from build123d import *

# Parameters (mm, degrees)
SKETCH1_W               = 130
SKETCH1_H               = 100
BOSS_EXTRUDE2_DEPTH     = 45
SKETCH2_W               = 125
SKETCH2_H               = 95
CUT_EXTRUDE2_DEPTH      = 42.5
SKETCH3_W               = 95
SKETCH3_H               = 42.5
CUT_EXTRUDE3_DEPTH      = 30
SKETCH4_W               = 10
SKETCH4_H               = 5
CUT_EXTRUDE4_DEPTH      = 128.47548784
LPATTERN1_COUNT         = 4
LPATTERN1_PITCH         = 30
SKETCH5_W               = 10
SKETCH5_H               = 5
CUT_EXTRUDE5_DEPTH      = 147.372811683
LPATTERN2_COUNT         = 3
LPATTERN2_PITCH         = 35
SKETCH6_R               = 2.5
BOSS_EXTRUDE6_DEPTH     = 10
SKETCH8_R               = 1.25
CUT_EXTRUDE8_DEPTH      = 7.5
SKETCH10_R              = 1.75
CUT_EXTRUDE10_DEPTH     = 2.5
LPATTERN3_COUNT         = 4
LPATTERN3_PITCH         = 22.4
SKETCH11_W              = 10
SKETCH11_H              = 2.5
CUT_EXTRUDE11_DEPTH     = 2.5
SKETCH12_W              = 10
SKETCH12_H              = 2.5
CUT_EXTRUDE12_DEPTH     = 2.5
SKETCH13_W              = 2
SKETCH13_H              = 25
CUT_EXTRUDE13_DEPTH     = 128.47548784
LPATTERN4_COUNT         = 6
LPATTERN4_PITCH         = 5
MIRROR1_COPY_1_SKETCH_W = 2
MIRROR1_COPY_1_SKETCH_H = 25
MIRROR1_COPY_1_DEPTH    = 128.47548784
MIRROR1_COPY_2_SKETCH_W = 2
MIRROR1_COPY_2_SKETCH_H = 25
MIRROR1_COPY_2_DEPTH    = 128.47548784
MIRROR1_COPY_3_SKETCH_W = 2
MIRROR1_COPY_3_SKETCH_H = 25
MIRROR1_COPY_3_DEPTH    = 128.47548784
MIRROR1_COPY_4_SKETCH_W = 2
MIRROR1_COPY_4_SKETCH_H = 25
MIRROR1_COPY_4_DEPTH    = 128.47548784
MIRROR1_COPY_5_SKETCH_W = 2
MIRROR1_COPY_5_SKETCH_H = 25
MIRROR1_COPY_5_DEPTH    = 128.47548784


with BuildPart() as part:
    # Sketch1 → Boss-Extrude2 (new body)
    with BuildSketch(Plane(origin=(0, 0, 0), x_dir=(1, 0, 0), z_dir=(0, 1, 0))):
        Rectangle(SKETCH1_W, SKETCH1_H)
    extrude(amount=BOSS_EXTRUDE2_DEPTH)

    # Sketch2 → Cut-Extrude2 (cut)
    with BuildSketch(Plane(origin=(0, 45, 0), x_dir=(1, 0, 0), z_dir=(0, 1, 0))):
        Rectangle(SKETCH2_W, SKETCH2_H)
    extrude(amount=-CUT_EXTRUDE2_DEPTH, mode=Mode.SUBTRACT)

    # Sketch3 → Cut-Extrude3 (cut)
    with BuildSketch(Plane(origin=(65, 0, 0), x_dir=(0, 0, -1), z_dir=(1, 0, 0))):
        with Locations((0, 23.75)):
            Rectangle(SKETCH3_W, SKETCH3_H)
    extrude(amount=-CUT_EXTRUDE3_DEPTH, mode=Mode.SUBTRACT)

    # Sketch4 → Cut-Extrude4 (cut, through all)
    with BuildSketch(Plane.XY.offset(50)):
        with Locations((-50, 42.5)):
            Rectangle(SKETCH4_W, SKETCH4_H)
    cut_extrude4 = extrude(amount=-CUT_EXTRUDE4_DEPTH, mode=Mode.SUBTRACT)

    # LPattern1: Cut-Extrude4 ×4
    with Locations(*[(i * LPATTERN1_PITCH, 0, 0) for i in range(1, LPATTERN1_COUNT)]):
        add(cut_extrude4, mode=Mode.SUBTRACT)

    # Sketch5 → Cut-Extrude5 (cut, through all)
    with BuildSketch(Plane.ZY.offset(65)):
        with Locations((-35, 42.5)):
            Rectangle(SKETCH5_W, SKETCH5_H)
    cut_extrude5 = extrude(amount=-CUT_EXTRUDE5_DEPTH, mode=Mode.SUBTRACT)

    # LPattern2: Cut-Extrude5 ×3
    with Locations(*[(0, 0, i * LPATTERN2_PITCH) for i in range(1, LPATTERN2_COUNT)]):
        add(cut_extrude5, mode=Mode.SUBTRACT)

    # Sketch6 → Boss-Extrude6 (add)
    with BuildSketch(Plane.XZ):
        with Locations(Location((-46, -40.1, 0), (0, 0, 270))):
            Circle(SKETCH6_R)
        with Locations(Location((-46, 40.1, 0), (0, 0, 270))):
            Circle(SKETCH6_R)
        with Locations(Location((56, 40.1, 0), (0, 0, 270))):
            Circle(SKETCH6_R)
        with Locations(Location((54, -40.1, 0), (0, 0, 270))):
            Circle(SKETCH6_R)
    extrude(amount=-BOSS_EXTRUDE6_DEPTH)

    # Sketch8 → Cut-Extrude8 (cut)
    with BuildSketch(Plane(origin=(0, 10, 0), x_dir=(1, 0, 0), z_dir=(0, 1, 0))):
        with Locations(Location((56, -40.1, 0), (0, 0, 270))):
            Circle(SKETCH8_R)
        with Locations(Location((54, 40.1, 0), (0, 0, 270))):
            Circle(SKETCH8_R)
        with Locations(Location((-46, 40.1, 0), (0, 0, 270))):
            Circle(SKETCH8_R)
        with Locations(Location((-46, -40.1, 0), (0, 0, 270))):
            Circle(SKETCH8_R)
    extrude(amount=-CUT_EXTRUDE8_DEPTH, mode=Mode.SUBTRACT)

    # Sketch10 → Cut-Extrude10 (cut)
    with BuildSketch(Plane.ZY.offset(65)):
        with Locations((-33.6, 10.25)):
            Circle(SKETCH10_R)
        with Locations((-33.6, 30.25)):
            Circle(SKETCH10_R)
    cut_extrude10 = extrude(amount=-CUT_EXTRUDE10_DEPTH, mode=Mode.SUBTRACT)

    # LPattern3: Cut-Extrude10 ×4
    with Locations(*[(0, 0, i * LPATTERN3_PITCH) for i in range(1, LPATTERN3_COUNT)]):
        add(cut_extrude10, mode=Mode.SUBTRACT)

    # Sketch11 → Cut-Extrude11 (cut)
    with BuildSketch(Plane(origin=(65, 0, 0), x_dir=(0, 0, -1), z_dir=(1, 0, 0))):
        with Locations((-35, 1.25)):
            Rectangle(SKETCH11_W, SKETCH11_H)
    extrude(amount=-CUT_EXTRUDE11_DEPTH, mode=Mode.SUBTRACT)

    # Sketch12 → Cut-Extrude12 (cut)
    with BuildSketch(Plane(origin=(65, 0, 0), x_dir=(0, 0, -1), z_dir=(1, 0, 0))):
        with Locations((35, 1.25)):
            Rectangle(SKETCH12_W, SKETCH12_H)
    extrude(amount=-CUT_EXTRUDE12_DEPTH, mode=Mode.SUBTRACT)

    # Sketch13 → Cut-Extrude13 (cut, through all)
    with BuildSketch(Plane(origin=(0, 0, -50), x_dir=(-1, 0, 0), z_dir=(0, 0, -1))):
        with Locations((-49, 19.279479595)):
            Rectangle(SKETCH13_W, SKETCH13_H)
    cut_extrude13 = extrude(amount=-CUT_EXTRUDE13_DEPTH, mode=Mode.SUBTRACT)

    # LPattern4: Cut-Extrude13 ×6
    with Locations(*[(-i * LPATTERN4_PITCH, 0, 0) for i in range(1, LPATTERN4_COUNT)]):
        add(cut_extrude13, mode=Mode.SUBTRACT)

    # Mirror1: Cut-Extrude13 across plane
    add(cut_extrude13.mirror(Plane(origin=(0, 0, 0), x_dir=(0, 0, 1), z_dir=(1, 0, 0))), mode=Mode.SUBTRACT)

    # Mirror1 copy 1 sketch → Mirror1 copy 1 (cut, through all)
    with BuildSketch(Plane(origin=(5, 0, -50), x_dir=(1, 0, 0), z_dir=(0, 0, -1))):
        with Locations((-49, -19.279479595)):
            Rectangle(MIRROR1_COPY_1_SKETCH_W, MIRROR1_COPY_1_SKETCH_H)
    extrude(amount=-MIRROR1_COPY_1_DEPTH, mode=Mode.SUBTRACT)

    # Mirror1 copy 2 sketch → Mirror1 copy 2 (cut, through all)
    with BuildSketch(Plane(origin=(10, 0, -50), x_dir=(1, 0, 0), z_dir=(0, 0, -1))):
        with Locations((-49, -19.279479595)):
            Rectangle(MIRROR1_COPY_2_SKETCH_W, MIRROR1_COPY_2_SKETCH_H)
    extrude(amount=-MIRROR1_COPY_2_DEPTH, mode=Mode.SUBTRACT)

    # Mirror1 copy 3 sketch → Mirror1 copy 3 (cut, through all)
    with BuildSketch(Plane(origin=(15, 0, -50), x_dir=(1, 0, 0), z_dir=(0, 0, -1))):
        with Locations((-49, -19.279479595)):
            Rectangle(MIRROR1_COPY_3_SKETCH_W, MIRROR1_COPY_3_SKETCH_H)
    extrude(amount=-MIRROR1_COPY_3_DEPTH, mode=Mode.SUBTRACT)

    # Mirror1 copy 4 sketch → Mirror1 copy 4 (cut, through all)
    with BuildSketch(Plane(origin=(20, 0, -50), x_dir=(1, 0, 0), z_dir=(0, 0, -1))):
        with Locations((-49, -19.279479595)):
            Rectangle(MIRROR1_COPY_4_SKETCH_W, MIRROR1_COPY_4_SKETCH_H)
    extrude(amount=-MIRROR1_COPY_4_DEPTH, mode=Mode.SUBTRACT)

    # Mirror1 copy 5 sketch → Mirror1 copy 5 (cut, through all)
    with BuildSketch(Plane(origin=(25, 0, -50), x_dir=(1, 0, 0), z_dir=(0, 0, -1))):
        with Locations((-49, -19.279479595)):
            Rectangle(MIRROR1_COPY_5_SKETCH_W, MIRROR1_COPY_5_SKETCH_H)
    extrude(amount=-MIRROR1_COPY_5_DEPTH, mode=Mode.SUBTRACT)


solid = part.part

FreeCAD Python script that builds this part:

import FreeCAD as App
import Part
import Sketcher
Q = App.Units.Quantity


def add_polygon(sketch, points):
    """Adds a closed chain of lines whose ends are joined by coincident constraints."""
    first, n = sketch.GeometryCount, len(points)
    for a, b in zip(points, points[1:] + points[:1]):
        sketch.addGeometry(Part.LineSegment(App.Vector(*a, 0), App.Vector(*b, 0)), False)
    for i in range(n):
        sketch.addConstraint(Sketcher.Constraint("Coincident", first + i, 2, first + (i + 1) % n, 1))

doc = App.newDocument("Part")
body = doc.addObject("PartDesign::Body", "Body")

# Sketch on XZ plane
sketch1 = doc.addObject("Sketcher::SketchObject", "Sketch")
body.addObject(sketch1)
sketch1.AttachmentSupport = (doc.XZ_Plane, [""])
sketch1.MapMode = "FlatFace"
add_polygon(sketch1, [(-65, -50), (-65, 50), (65, 50), (65, -50)])  # lines 0-3
sketch1.addConstraint([
    Sketcher.Constraint("Vertical", 0),
    Sketcher.Constraint("Horizontal", 1),
    Sketcher.Constraint("Vertical", 2),
    Sketcher.Constraint("Horizontal", 3),
    Sketcher.Constraint("Symmetric", 0, 2, 2, 2, -1, 1),
    Sketcher.Constraint("DistanceX", 1, 1, 1, 2, Q("130 mm")),
    Sketcher.Constraint("DistanceY", 0, 1, 0, 2, Q("100 mm")),
])
pad1 = doc.addObject("PartDesign::Pad", "Pad")
body.addObject(pad1)
pad1.Profile = sketch1
pad1.Length = 45
pad1.Reversed = True

# Sketch on XZ plane
sketch2 = doc.addObject("Sketcher::SketchObject", "Sketch001")
body.addObject(sketch2)
sketch2.AttachmentSupport = (doc.XZ_Plane, [""])
sketch2.MapMode = "FlatFace"
sketch2.AttachmentOffset = App.Placement(App.Vector(0, 0, -45), App.Rotation())
add_polygon(sketch2, [(-62.5, -47.5), (-62.5, 47.5), (62.5, 47.5), (62.5, -47.5)])  # lines 0-3
sketch2.addConstraint([
    Sketcher.Constraint("Vertical", 0),
    Sketcher.Constraint("Horizontal", 1),
    Sketcher.Constraint("Vertical", 2),
    Sketcher.Constraint("Horizontal", 3),
    Sketcher.Constraint("Symmetric", 0, 2, 2, 2, -1, 1),
    Sketcher.Constraint("DistanceX", 1, 1, 1, 2, Q("125 mm")),
    Sketcher.Constraint("DistanceY", 0, 1, 0, 2, Q("95 mm")),
])
pocket1 = doc.addObject("PartDesign::Pocket", "Pocket")
body.addObject(pocket1)
pocket1.Profile = sketch2
pocket1.Length = 42.5
pocket1.Reversed = True

# Sketch on YZ plane
sketch3 = doc.addObject("Sketcher::SketchObject", "Sketch002")
body.addObject(sketch3)
sketch3.AttachmentSupport = (doc.YZ_Plane, [""])
sketch3.MapMode = "FlatFace"
sketch3.AttachmentOffset = App.Placement(App.Vector(0, 0, 65), App.Rotation())
add_polygon(sketch3, [(45, 47.5), (2.5, 47.5), (2.5, -47.5), (45, -47.5)])  # lines 0-3
sketch3.addConstraint([
    Sketcher.Constraint("Horizontal", 0),
    Sketcher.Constraint("Vertical", 1),
    Sketcher.Constraint("Horizontal", 2),
    Sketcher.Constraint("Vertical", 3),
    Sketcher.Constraint("DistanceY", 1, 2, 1, 1, Q("95 mm")),
    Sketcher.Constraint("DistanceX", 0, 2, 0, 1, Q("42.5 mm")),
    Sketcher.Constraint("DistanceX", -1, 1, 2, 2, Q("45 mm")),
    Sketcher.Constraint("DistanceY", -1, 1, 0, 2, Q("47.5 mm")),
])
pocket2 = doc.addObject("PartDesign::Pocket", "Pocket001")
body.addObject(pocket2)
pocket2.Profile = sketch3
pocket2.Length = 30

# Sketch on XY plane
sketch4 = doc.addObject("Sketcher::SketchObject", "Sketch003")
body.addObject(sketch4)
sketch4.AttachmentSupport = (doc.XY_Plane, [""])
sketch4.MapMode = "FlatFace"
sketch4.AttachmentOffset = App.Placement(App.Vector(0, 0, 50), App.Rotation())
add_polygon(sketch4, [(-55, 45), (-55, 40), (-45, 40), (-45, 45)])  # lines 0-3
sketch4.addConstraint([
    Sketcher.Constraint("Vertical", 0),
    Sketcher.Constraint("Horizontal", 1),
    Sketcher.Constraint("Vertical", 2),
    Sketcher.Constraint("Horizontal", 3),
    Sketcher.Constraint("DistanceX", 1, 1, 1, 2, Q("10 mm")),
    Sketcher.Constraint("DistanceY", 0, 2, 0, 1, Q("5 mm")),
    Sketcher.Constraint("DistanceX", 0, 2, -1, 1, Q("55 mm")),
    Sketcher.Constraint("DistanceY", -1, 1, 0, 2, Q("40 mm")),
])
pocket3 = doc.addObject("PartDesign::Pocket", "Pocket002")
body.addObject(pocket3)
pocket3.Profile = sketch4
pocket3.Type = "ThroughAll"
doc.recompute()

linearpattern = doc.addObject("PartDesign::LinearPattern", "LinearPattern")
body.addObject(linearpattern)
linearpattern.Originals = [pocket3]
linearpattern.Direction = (doc.X_Axis, [""])
linearpattern.Mode = "offset"
linearpattern.Offset = 30
linearpattern.Occurrences = 4
body.Tip = linearpattern

# Sketch on YZ plane
sketch5 = doc.addObject("Sketcher::SketchObject", "Sketch004")
body.addObject(sketch5)
sketch5.AttachmentSupport = (doc.YZ_Plane, [""])
sketch5.MapMode = "FlatFace"
sketch5.AttachmentOffset = App.Placement(App.Vector(0, 0, -65), App.Rotation())
add_polygon(sketch5, [(45, -40), (40, -40), (40, -30), (45, -30)])  # lines 0-3
sketch5.addConstraint([
    Sketcher.Constraint("Horizontal", 0),
    Sketcher.Constraint("Vertical", 1),
    Sketcher.Constraint("Horizontal", 2),
    Sketcher.Constraint("Vertical", 3),
    Sketcher.Constraint("DistanceX", 0, 2, 0, 1, Q("5 mm")),
    Sketcher.Constraint("DistanceY", 1, 1, 1, 2, Q("10 mm")),
    Sketcher.Constraint("DistanceX", -1, 1, 0, 2, Q("40 mm")),
    Sketcher.Constraint("DistanceY", 0, 2, -1, 1, Q("40 mm")),
])
pocket4 = doc.addObject("PartDesign::Pocket", "Pocket003")
body.addObject(pocket4)
pocket4.Profile = sketch5
pocket4.Type = "ThroughAll"
pocket4.Reversed = True
doc.recompute()

linearpattern2 = doc.addObject("PartDesign::LinearPattern", "LinearPattern001")
body.addObject(linearpattern2)
linearpattern2.Originals = [pocket4]
linearpattern2.Direction = (doc.Z_Axis, [""])
linearpattern2.Mode = "offset"
linearpattern2.Offset = 35
linearpattern2.Occurrences = 3
body.Tip = linearpattern2

# Sketch on XZ plane
sketch6 = doc.addObject("Sketcher::SketchObject", "Sketch005")
body.addObject(sketch6)
sketch6.AttachmentSupport = (doc.XZ_Plane, [""])
sketch6.MapMode = "FlatFace"
sketch6.addGeometry([
    Part.Circle(App.Vector(-46, -40.1, 0), App.Vector(0, 0, 1), 2.5),
    Part.Circle(App.Vector(-46, 40.1, 0), App.Vector(0, 0, 1), 2.5),
    Part.Circle(App.Vector(56, 40.1, 0), App.Vector(0, 0, 1), 2.5),
    Part.Circle(App.Vector(54, -40.1, 0), App.Vector(0, 0, 1), 2.5),
], False)
sketch6.addConstraint([
    Sketcher.Constraint("Equal", 0, 1),
    Sketcher.Constraint("Equal", 1, 2),
    Sketcher.Constraint("Equal", 2, 3),
    Sketcher.Constraint("Symmetric", 0, 3, 1, 3, -1),
    Sketcher.Constraint("Horizontal", 1, 3, 2, 3),
    Sketcher.Constraint("Horizontal", 0, 3, 3, 3),
    Sketcher.Constraint("Diameter", 0, Q("5 mm")),
    Sketcher.Constraint("DistanceX", 0, 3, -1, 1, Q("46 mm")),
    Sketcher.Constraint("DistanceX", -1, 1, 2, 3, Q("56 mm")),
    Sketcher.Constraint("DistanceX", -1, 1, 3, 3, Q("54 mm")),
    Sketcher.Constraint("DistanceY", 0, 3, -1, 1, Q("40.1 mm")),
])
pad2 = doc.addObject("PartDesign::Pad", "Pad001")
body.addObject(pad2)
pad2.Profile = sketch6
pad2.Length = 10
pad2.Reversed = True

# Sketch on XZ plane
sketch7 = doc.addObject("Sketcher::SketchObject", "Sketch006")
body.addObject(sketch7)
sketch7.AttachmentSupport = (doc.XZ_Plane, [""])
sketch7.MapMode = "FlatFace"
sketch7.AttachmentOffset = App.Placement(App.Vector(0, 0, -10), App.Rotation())
sketch7.addGeometry([
    Part.Circle(App.Vector(56, 40.1, 0), App.Vector(0, 0, 1), 1.25),
    Part.Circle(App.Vector(54, -40.1, 0), App.Vector(0, 0, 1), 1.25),
    Part.Circle(App.Vector(-46, -40.1, 0), App.Vector(0, 0, 1), 1.25),
    Part.Circle(App.Vector(-46, 40.1, 0), App.Vector(0, 0, 1), 1.25),
], False)
sketch7.addConstraint([
    Sketcher.Constraint("Equal", 0, 1),
    Sketcher.Constraint("Equal", 1, 2),
    Sketcher.Constraint("Equal", 2, 3),
    Sketcher.Constraint("Symmetric", 2, 3, 3, 3, -1),
    Sketcher.Constraint("Horizontal", 1, 3, 2, 3),
    Sketcher.Constraint("Horizontal", 0, 3, 3, 3),
    Sketcher.Constraint("Diameter", 0, Q("2.5 mm")),
    Sketcher.Constraint("DistanceX", -1, 1, 0, 3, Q("56 mm")),
    Sketcher.Constraint("DistanceX", -1, 1, 1, 3, Q("54 mm")),
    Sketcher.Constraint("DistanceX", 2, 3, -1, 1, Q("46 mm")),
    Sketcher.Constraint("DistanceY", -1, 1, 0, 3, Q("40.1 mm")),
])
pocket5 = doc.addObject("PartDesign::Pocket", "Pocket004")
body.addObject(pocket5)
pocket5.Profile = sketch7
pocket5.Length = 7.5
pocket5.Reversed = True

# Sketch on YZ plane
sketch8 = doc.addObject("Sketcher::SketchObject", "Sketch007")
body.addObject(sketch8)
sketch8.AttachmentSupport = (doc.YZ_Plane, [""])
sketch8.MapMode = "FlatFace"
sketch8.AttachmentOffset = App.Placement(App.Vector(0, 0, -65), App.Rotation())
sketch8.addGeometry([
    Part.Circle(App.Vector(10.25, -33.6, 0), App.Vector(0, 0, 1), 1.75),
    Part.Circle(App.Vector(30.25, -33.6, 0), App.Vector(0, 0, 1), 1.75),
], False)
sketch8.addConstraint([
    Sketcher.Constraint("Equal", 0, 1),
    Sketcher.Constraint("Horizontal", 0, 3, 1, 3),
    Sketcher.Constraint("Diameter", 0, Q("3.5 mm")),
    Sketcher.Constraint("DistanceX", 0, 3, 1, 3, Q("20 mm")),
    Sketcher.Constraint("DistanceY", 0, 3, -1, 1, Q("33.6 mm")),
    Sketcher.Constraint("DistanceX", -1, 1, 0, 3, Q("10.25 mm")),
])
pocket6 = doc.addObject("PartDesign::Pocket", "Pocket005")
body.addObject(pocket6)
pocket6.Profile = sketch8
pocket6.Length = 2.5
pocket6.Reversed = True
doc.recompute()

linearpattern3 = doc.addObject("PartDesign::LinearPattern", "LinearPattern002")
body.addObject(linearpattern3)
linearpattern3.Originals = [pocket6]
linearpattern3.Direction = (doc.Z_Axis, [""])
linearpattern3.Mode = "offset"
linearpattern3.Offset = 22.4
linearpattern3.Occurrences = 4
body.Tip = linearpattern3

# Sketch on YZ plane
sketch9 = doc.addObject("Sketcher::SketchObject", "Sketch008")
body.addObject(sketch9)
sketch9.AttachmentSupport = (doc.YZ_Plane, [""])
sketch9.MapMode = "FlatFace"
sketch9.AttachmentOffset = App.Placement(App.Vector(0, 0, 65), App.Rotation())
add_polygon(sketch9, [(2.5, 40), (0, 40), (0, 30), (2.5, 30)])  # lines 0-3
sketch9.addConstraint([
    Sketcher.Constraint("Horizontal", 0),
    Sketcher.Constraint("Vertical", 1),
    Sketcher.Constraint("Horizontal", 2),
    Sketcher.Constraint("Vertical", 3),
    Sketcher.Constraint("PointOnObject", 0, 2, -2),
    Sketcher.Constraint("DistanceY", 1, 2, 1, 1, Q("10 mm")),
    Sketcher.Constraint("DistanceX", 0, 2, 0, 1, Q("2.5 mm")),
    Sketcher.Constraint("DistanceY", -1, 1, 0, 2, Q("40 mm")),
])
pocket7 = doc.addObject("PartDesign::Pocket", "Pocket006")
body.addObject(pocket7)
pocket7.Profile = sketch9
pocket7.Length = 2.5

# Sketch on YZ plane
sketch10 = doc.addObject("Sketcher::SketchObject", "Sketch009")
body.addObject(sketch10)
sketch10.AttachmentSupport = (doc.YZ_Plane, [""])
sketch10.MapMode = "FlatFace"
sketch10.AttachmentOffset = App.Placement(App.Vector(0, 0, 65), App.Rotation())
add_polygon(sketch10, [(2.5, -30), (0, -30), (0, -40), (2.5, -40)])  # lines 0-3
sketch10.addConstraint([
    Sketcher.Constraint("Horizontal", 0),
    Sketcher.Constraint("Vertical", 1),
    Sketcher.Constraint("Horizontal", 2),
    Sketcher.Constraint("Vertical", 3),
    Sketcher.Constraint("PointOnObject", 0, 2, -2),
    Sketcher.Constraint("DistanceY", 1, 2, 1, 1, Q("10 mm")),
    Sketcher.Constraint("DistanceX", 0, 2, 0, 1, Q("2.5 mm")),
    Sketcher.Constraint("DistanceY", 0, 2, -1, 1, Q("30 mm")),
])
pocket8 = doc.addObject("PartDesign::Pocket", "Pocket007")
body.addObject(pocket8)
pocket8.Profile = sketch10
pocket8.Length = 2.5

# Sketch on XY plane
sketch11 = doc.addObject("Sketcher::SketchObject", "Sketch010")
body.addObject(sketch11)
sketch11.AttachmentSupport = (doc.XY_Plane, [""])
sketch11.MapMode = "FlatFace"
sketch11.AttachmentOffset = App.Placement(App.Vector(0, 0, -50), App.Rotation())
add_polygon(sketch11, [(50, 31.77948), (50, 6.77948), (48, 6.77948), (48, 31.77948)])  # lines 0-3
sketch11.addConstraint([
    Sketcher.Constraint("Vertical", 0),
    Sketcher.Constraint("Horizontal", 1),
    Sketcher.Constraint("Vertical", 2),
    Sketcher.Constraint("Horizontal", 3),
    Sketcher.Constraint("DistanceX", 1, 2, 1, 1, Q("2 mm")),
    Sketcher.Constraint("DistanceY", 0, 2, 0, 1, Q("25 mm")),
    Sketcher.Constraint("DistanceX", -1, 1, 0, 2, Q("50 mm")),
    Sketcher.Constraint("DistanceY", -1, 1, 0, 2, Q("6.77948 mm")),
])
pocket9 = doc.addObject("PartDesign::Pocket", "Pocket008")
body.addObject(pocket9)
pocket9.Profile = sketch11
pocket9.Type = "ThroughAll"
pocket9.Reversed = True
doc.recompute()

linearpattern4 = doc.addObject("PartDesign::LinearPattern", "LinearPattern003")
body.addObject(linearpattern4)
linearpattern4.Originals = [pocket9]
linearpattern4.Direction = (doc.X_Axis, [""])
linearpattern4.Mode = "offset"
linearpattern4.Offset = 5
linearpattern4.Occurrences = 6
linearpattern4.Reversed = True
body.Tip = linearpattern4
doc.recompute()

mirrored = doc.addObject("PartDesign::Mirrored", "Mirrored")
body.addObject(mirrored)
mirrored.Originals = [pocket9]
mirrored.MirrorPlane = (doc.YZ_Plane, [""])
body.Tip = mirrored

# Sketch on XY plane
sketch12 = doc.addObject("Sketcher::SketchObject", "Sketch011")
body.addObject(sketch12)
sketch12.AttachmentSupport = (doc.XY_Plane, [""])
sketch12.MapMode = "FlatFace"
sketch12.AttachmentOffset = App.Placement(App.Vector(0, 0, -50), App.Rotation())
add_polygon(sketch12, [(-45, 6.77948), (-45, 31.77948), (-43, 31.77948), (-43, 6.77948)])  # lines 0-3
sketch12.addConstraint([
    Sketcher.Constraint("Vertical", 0),
    Sketcher.Constraint("Horizontal", 1),
    Sketcher.Constraint("Vertical", 2),
    Sketcher.Constraint("Horizontal", 3),
    Sketcher.Constraint("DistanceX", 1, 1, 1, 2, Q("2 mm")),
    Sketcher.Constraint("DistanceY", 0, 1, 0, 2, Q("25 mm")),
    Sketcher.Constraint("DistanceX", 0, 2, -1, 1, Q("45 mm")),
    Sketcher.Constraint("DistanceY", -1, 1, 0, 2, Q("31.77948 mm")),
])
pocket10 = doc.addObject("PartDesign::Pocket", "Pocket009")
body.addObject(pocket10)
pocket10.Profile = sketch12
pocket10.Type = "ThroughAll"
pocket10.Reversed = True

# Sketch on XY plane
sketch13 = doc.addObject("Sketcher::SketchObject", "Sketch012")
body.addObject(sketch13)
sketch13.AttachmentSupport = (doc.XY_Plane, [""])
sketch13.MapMode = "FlatFace"
sketch13.AttachmentOffset = App.Placement(App.Vector(0, 0, -50), App.Rotation())
add_polygon(sketch13, [(-40, 6.77948), (-40, 31.77948), (-38, 31.77948), (-38, 6.77948)])  # lines 0-3
sketch13.addConstraint([
    Sketcher.Constraint("Vertical", 0),
    Sketcher.Constraint("Horizontal", 1),
    Sketcher.Constraint("Vertical", 2),
    Sketcher.Constraint("Horizontal", 3),
    Sketcher.Constraint("DistanceX", 1, 1, 1, 2, Q("2 mm")),
    Sketcher.Constraint("DistanceY", 0, 1, 0, 2, Q("25 mm")),
    Sketcher.Constraint("DistanceX", 0, 2, -1, 1, Q("40 mm")),
    Sketcher.Constraint("DistanceY", -1, 1, 0, 2, Q("31.77948 mm")),
])
pocket11 = doc.addObject("PartDesign::Pocket", "Pocket010")
body.addObject(pocket11)
pocket11.Profile = sketch13
pocket11.Type = "ThroughAll"
pocket11.Reversed = True

# Sketch on XY plane
sketch14 = doc.addObject("Sketcher::SketchObject", "Sketch013")
body.addObject(sketch14)
sketch14.AttachmentSupport = (doc.XY_Plane, [""])
sketch14.MapMode = "FlatFace"
sketch14.AttachmentOffset = App.Placement(App.Vector(0, 0, -50), App.Rotation())
add_polygon(sketch14, [(-35, 6.77948), (-35, 31.77948), (-33, 31.77948), (-33, 6.77948)])  # lines 0-3
sketch14.addConstraint([
    Sketcher.Constraint("Vertical", 0),
    Sketcher.Constraint("Horizontal", 1),
    Sketcher.Constraint("Vertical", 2),
    Sketcher.Constraint("Horizontal", 3),
    Sketcher.Constraint("DistanceX", 1, 1, 1, 2, Q("2 mm")),
    Sketcher.Constraint("DistanceY", 0, 1, 0, 2, Q("25 mm")),
    Sketcher.Constraint("DistanceX", 0, 2, -1, 1, Q("35 mm")),
    Sketcher.Constraint("DistanceY", -1, 1, 0, 2, Q("31.77948 mm")),
])
pocket12 = doc.addObject("PartDesign::Pocket", "Pocket011")
body.addObject(pocket12)
pocket12.Profile = sketch14
pocket12.Type = "ThroughAll"
pocket12.Reversed = True

# Sketch on XY plane
sketch15 = doc.addObject("Sketcher::SketchObject", "Sketch014")
body.addObject(sketch15)
sketch15.AttachmentSupport = (doc.XY_Plane, [""])
sketch15.MapMode = "FlatFace"
sketch15.AttachmentOffset = App.Placement(App.Vector(0, 0, -50), App.Rotation())
add_polygon(sketch15, [(-30, 6.77948), (-30, 31.77948), (-28, 31.77948), (-28, 6.77948)])  # lines 0-3
sketch15.addConstraint([
    Sketcher.Constraint("Vertical", 0),
    Sketcher.Constraint("Horizontal", 1),
    Sketcher.Constraint("Vertical", 2),
    Sketcher.Constraint("Horizontal", 3),
    Sketcher.Constraint("DistanceX", 1, 1, 1, 2, Q("2 mm")),
    Sketcher.Constraint("DistanceY", 0, 1, 0, 2, Q("25 mm")),
    Sketcher.Constraint("DistanceX", 0, 2, -1, 1, Q("30 mm")),
    Sketcher.Constraint("DistanceY", -1, 1, 0, 2, Q("31.77948 mm")),
])
pocket13 = doc.addObject("PartDesign::Pocket", "Pocket012")
body.addObject(pocket13)
pocket13.Profile = sketch15
pocket13.Type = "ThroughAll"
pocket13.Reversed = True

# Sketch on XY plane
sketch16 = doc.addObject("Sketcher::SketchObject", "Sketch015")
body.addObject(sketch16)
sketch16.AttachmentSupport = (doc.XY_Plane, [""])
sketch16.MapMode = "FlatFace"
sketch16.AttachmentOffset = App.Placement(App.Vector(0, 0, -50), App.Rotation())
add_polygon(sketch16, [(-25, 6.77948), (-25, 31.77948), (-23, 31.77948), (-23, 6.77948)])  # lines 0-3
sketch16.addConstraint([
    Sketcher.Constraint("Vertical", 0),
    Sketcher.Constraint("Horizontal", 1),
    Sketcher.Constraint("Vertical", 2),
    Sketcher.Constraint("Horizontal", 3),
    Sketcher.Constraint("DistanceX", 1, 1, 1, 2, Q("2 mm")),
    Sketcher.Constraint("DistanceY", 0, 1, 0, 2, Q("25 mm")),
    Sketcher.Constraint("DistanceX", 0, 2, -1, 1, Q("25 mm")),
    Sketcher.Constraint("DistanceY", -1, 1, 0, 2, Q("31.77948 mm")),
])
pocket14 = doc.addObject("PartDesign::Pocket", "Pocket013")
body.addObject(pocket14)
pocket14.Profile = sketch16
pocket14.Type = "ThroughAll"
pocket14.Reversed = True

doc.recompute()
